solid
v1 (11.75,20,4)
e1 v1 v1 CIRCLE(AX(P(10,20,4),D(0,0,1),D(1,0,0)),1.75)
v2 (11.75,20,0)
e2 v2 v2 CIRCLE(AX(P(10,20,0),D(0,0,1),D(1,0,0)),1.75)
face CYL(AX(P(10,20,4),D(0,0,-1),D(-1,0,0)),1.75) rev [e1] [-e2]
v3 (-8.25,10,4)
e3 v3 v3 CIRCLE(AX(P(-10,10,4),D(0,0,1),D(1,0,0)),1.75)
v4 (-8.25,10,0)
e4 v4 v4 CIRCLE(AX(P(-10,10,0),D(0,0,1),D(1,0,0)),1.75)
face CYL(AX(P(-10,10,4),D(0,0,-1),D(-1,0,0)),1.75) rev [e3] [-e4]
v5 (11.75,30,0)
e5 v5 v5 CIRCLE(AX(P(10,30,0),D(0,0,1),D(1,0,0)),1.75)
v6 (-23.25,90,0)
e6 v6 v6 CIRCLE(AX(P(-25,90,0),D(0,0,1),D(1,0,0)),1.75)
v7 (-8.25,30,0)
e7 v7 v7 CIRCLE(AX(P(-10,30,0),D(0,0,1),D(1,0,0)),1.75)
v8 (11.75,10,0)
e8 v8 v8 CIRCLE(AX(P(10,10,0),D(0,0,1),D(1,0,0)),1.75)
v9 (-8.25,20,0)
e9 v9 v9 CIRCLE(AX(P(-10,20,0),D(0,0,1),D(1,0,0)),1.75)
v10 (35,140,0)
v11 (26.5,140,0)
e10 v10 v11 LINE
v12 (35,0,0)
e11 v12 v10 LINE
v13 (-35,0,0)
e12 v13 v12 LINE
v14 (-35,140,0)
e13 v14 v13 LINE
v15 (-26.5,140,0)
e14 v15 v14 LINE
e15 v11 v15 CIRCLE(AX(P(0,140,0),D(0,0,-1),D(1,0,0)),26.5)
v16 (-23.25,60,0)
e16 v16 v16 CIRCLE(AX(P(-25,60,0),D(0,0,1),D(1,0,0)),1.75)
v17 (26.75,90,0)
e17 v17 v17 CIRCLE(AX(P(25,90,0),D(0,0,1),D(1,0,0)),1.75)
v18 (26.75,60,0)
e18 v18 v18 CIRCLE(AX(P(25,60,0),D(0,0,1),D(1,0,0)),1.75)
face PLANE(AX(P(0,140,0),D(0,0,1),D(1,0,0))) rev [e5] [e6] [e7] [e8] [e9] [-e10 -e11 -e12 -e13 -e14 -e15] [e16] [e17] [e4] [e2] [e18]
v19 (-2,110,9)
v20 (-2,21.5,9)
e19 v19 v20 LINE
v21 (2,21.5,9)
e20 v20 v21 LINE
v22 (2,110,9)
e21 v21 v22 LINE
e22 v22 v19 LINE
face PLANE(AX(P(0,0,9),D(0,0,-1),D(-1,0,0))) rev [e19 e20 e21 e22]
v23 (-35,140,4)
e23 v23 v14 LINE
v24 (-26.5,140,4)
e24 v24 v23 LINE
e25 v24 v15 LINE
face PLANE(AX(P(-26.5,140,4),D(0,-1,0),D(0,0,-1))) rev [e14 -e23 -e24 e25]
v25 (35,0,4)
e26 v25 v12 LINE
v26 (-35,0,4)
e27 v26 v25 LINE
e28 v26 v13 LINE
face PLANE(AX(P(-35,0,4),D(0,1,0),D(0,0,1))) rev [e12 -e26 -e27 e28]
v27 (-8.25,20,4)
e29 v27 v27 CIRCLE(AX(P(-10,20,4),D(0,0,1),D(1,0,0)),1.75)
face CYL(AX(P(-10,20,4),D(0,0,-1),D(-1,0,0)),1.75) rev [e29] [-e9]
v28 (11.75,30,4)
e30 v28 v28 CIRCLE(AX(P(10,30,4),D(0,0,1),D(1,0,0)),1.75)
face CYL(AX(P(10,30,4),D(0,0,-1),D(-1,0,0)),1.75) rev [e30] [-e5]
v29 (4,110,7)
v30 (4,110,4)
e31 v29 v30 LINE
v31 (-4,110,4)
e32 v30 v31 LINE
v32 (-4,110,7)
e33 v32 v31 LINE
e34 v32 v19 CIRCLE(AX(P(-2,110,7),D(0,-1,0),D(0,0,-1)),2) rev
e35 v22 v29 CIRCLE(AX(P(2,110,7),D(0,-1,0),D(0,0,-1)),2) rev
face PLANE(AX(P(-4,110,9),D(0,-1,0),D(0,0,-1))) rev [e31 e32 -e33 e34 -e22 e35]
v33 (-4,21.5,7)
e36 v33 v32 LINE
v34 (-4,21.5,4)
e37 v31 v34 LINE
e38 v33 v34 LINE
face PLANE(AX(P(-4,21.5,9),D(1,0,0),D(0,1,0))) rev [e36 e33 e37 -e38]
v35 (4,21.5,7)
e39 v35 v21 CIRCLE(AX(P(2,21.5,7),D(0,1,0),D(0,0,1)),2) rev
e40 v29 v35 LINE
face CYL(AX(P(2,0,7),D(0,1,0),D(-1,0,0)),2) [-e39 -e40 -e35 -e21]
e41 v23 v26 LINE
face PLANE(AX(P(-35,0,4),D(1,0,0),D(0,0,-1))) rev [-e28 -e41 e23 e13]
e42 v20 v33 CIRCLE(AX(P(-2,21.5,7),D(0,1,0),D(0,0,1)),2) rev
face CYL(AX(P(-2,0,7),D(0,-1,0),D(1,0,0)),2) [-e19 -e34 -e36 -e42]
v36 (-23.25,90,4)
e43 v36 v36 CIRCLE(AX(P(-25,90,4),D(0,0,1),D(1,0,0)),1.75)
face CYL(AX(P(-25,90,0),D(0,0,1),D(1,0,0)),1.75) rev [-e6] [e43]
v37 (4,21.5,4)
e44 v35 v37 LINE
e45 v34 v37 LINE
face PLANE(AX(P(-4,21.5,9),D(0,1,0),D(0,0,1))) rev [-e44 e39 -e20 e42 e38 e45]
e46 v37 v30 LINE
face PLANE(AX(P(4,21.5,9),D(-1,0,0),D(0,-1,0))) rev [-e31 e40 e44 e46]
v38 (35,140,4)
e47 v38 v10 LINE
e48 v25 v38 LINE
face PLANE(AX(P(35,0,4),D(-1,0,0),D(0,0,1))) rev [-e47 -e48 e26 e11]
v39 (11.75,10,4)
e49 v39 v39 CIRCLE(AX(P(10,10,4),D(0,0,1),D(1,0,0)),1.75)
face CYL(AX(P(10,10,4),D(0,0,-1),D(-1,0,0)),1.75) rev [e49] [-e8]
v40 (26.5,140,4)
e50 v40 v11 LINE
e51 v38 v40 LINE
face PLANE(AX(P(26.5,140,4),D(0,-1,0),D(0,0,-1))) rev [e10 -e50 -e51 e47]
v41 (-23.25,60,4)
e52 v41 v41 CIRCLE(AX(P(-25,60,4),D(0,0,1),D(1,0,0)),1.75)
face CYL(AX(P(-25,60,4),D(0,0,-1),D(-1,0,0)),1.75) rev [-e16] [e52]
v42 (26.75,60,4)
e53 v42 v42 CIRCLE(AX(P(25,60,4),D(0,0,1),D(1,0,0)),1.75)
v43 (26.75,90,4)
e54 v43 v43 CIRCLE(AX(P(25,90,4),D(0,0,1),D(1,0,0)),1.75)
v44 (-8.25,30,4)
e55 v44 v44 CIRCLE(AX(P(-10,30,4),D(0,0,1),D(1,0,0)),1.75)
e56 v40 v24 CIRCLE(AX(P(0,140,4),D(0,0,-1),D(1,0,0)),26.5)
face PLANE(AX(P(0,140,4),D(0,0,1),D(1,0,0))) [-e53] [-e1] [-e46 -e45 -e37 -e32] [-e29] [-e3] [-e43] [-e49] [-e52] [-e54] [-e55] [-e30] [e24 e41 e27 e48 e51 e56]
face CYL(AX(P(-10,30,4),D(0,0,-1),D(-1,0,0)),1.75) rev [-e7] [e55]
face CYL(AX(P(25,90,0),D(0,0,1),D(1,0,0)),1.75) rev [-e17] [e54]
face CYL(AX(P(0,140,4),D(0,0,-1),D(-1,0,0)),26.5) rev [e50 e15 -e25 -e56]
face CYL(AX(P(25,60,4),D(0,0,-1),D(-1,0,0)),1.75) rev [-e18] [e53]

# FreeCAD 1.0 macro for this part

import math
import FreeCAD as App
import Part
import Sketcher
from FreeCAD import Vector
Q = App.Units.Quantity


def edges_at(feature, points):
    """Names of the edges that pass closest to the given points."""
    edges = feature.Shape.Edges
    near = lambda p: min(range(len(edges)), key=lambda i: edges[i].distToShape(Part.Vertex(*p))[0])
    return sorted({f"Edge{near(p) + 1}" for p in points})

doc = App.newDocument("Part")
params = doc.addObject("Spreadsheet::Sheet", "Params")
for row, (alias, value) in enumerate([
    ("sketch1_diameter", "3.5 mm"),
    ("sketch1_radius", "26.5 mm"),
    ("sketch1_width", "70 mm"),
    ("sketch1_height", "140 mm"),
    ("pad1_length", "4 mm"),
    ("sketch2_width", "8 mm"),
    ("sketch2_height", "88.5 mm"),
    ("pad2_length", "5 mm"),
    ("fillet_radius", "2 mm"),
    ("sketch3_diameter", "3.5 mm"),
], start=1):
    params.set(f"A{row}", alias)
    params.set(f"B{row}", "=" + value)
    params.setAlias(f"B{row}", alias)

body = doc.addObject("PartDesign::Body", "Body")

# Sketch on XY plane
sketch1 = body.newObject("Sketcher::SketchObject", "Sketch")
sketch1.AttachmentSupport = (doc.getObject("XY_Plane"), [""])
sketch1.MapMode = "FlatFace"
sketch1.addGeometry(Part.LineSegment(Vector(-26.5, 140, 0), Vector(-35, 140, 0)), False)
sketch1.addGeometry(Part.LineSegment(Vector(-35, 140, 0), Vector(-35, 0, 0)), False)
sketch1.addGeometry(Part.LineSegment(Vector(-35, 0, 0), Vector(35, 0, 0)), False)
sketch1.addGeometry(Part.LineSegment(Vector(35, 0, 0), Vector(35, 140, 0)), False)
sketch1.addGeometry(Part.LineSegment(Vector(35, 140, 0), Vector(26.5, 140, 0)), False)
sketch1.addGeometry(Part.ArcOfCircle(Part.Circle(Vector(0, 140, 0), Vector(0, 0, 1), 26.5), math.radians(180), math.radians(360)), False)
sketch1.addGeometry(Part.Circle(Vector(-10, 10, 0), Vector(0, 0, 1), 1.75), False)
sketch1.addGeometry(Part.Circle(Vector(-10, 20, 0), Vector(0, 0, 1), 1.75), False)
sketch1.addGeometry(Part.Circle(Vector(-10, 30, 0), Vector(0, 0, 1), 1.75), False)
sketch1.addGeometry(Part.Circle(Vector(10, 10, 0), Vector(0, 0, 1), 1.75), False)
sketch1.addGeometry(Part.Circle(Vector(10, 20, 0), Vector(0, 0, 1), 1.75), False)
sketch1.addGeometry(Part.Circle(Vector(10, 30, 0), Vector(0, 0, 1), 1.75), False)
sketch1.addGeometry(Part.Circle(Vector(-25, 60, 0), Vector(0, 0, 1), 1.75), False)
sketch1.addGeometry(Part.Circle(Vector(25, 60, 0), Vector(0, 0, 1), 1.75), False)
sketch1.addConstraint(Sketcher.Constraint("Coincident", 0, 2, 1, 1))
sketch1.addConstraint(Sketcher.Constraint("Coincident", 1, 2, 2, 1))
sketch1.addConstraint(Sketcher.Constraint("Coincident", 2, 2, 3, 1))
sketch1.addConstraint(Sketcher.Constraint("Coincident", 3, 2, 4, 1))
sketch1.addConstraint(Sketcher.Constraint("Coincident", 4, 2, 5, 2))
sketch1.addConstraint(Sketcher.Constraint("Coincident", 5, 1, 0, 1))
sketch1.addConstraint(Sketcher.Constraint("Horizontal", 0))
sketch1.addConstraint(Sketcher.Constraint("Vertical", 1))
sketch1.addConstraint(Sketcher.Constraint("Horizontal", 2))
sketch1.addConstraint(Sketcher.Constraint("Vertical", 3))
sketch1.addConstraint(Sketcher.Constraint("Horizontal", 4))
sketch1.addConstraint(Sketcher.Constraint("Equal", 6, 7))
sketch1.addConstraint(Sketcher.Constraint("Equal", 7, 8))
sketch1.addConstraint(Sketcher.Constraint("Equal", 8, 9))
sketch1.addConstraint(Sketcher.Constraint("Equal", 9, 10))
sketch1.addConstraint(Sketcher.Constraint("Equal", 10, 11))
sketch1.addConstraint(Sketcher.Constraint("Equal", 11, 12))
sketch1.addConstraint(Sketcher.Constraint("Equal", 12, 13))
sketch1.addConstraint(Sketcher.Constraint("Symmetric", 1, 2, 2, 2, -1, 1))
sketch1.addConstraint(Sketcher.Constraint("Symmetric", 6, 3, 9, 3, -2))
sketch1.addConstraint(Sketcher.Constraint("Symmetric", 7, 3, 10, 3, -2))
sketch1.addConstraint(Sketcher.Constraint("Symmetric", 8, 3, 11, 3, -2))
sketch1.addConstraint(Sketcher.Constraint("Symmetric", 12, 3, 13, 3, -2))
sketch1.addConstraint(Sketcher.Constraint("Symmetric", 4, 2, 5, 1, -2))
sketch1.addConstraint(Sketcher.Constraint("Horizontal", 5, 3, 0, 2))
sketch1.addConstraint(Sketcher.Constraint("Vertical", 6, 3, 7, 3))
sketch1.addConstraint(Sketcher.Constraint("Vertical", 7, 3, 8, 3))
sketch1.addConstraint(Sketcher.Constraint("Diameter", 6, Q("3.5 mm")))
sketch1.addConstraint(Sketcher.Constraint("Radius", 5, Q("26.5 mm")))
sketch1.addConstraint(Sketcher.Constraint("DistanceX", 2, 1, 2, 2, Q("70 mm")))
sketch1.addConstraint(Sketcher.Constraint("DistanceY", 1, 2, 1, 1, Q("140 mm")))
sketch1.addConstraint(Sketcher.Constraint("DistanceX", 6, 3, -1, 1, Q("10 mm")))
sketch1.addConstraint(Sketcher.Constraint("DistanceY", -1, 1, 6, 3, Q("10 mm")))
sketch1.addConstraint(Sketcher.Constraint("DistanceY", -1, 1, 7, 3, Q("20 mm")))
sketch1.addConstraint(Sketcher.Constraint("DistanceY", -1, 1, 8, 3, Q("30 mm")))
sketch1.addConstraint(Sketcher.Constraint("DistanceX", 12, 3, -1, 1, Q("25 mm")))
sketch1.addConstraint(Sketcher.Constraint("DistanceY", -1, 1, 12, 3, Q("60 mm")))
sketch1.setExpression("Constraints[27]", "Params.sketch1_diameter")
sketch1.setExpression("Constraints[28]", "Params.sketch1_radius")
sketch1.setExpression("Constraints[29]", "Params.sketch1_width")
sketch1.setExpression("Constraints[30]", "Params.sketch1_height")
pad1 = body.newObject("PartDesign::Pad", "Pad")
pad1.Profile = sketch1
pad1.setExpression("Length", "Params.pad1_length")

# Sketch on XY plane
sketch2 = body.newObject("Sketcher::SketchObject", "Sketch001")
sketch2.AttachmentSupport = (doc.getObject("XY_Plane"), [""])
sketch2.MapMode = "FlatFace"
sketch2.AttachmentOffset = App.Placement(Vector(0, 0, 4), App.Rotation())
sketch2.addGeometry(Part.LineSegment(Vector(-4, 110, 0), Vector(-4, 21.5, 0)), False)
sketch2.addGeometry(Part.LineSegment(Vector(-4, 21.5, 0), Vector(4, 21.5, 0)), False)
sketch2.addGeometry(Part.LineSegment(Vector(4, 21.5, 0), Vector(4, 110, 0)), False)
sketch2.addGeometry(Part.LineSegment(Vector(4, 110, 0), Vector(-4, 110, 0)), False)
sketch2.addConstraint(Sketcher.Constraint("Coincident", 0, 2, 1, 1))
sketch2.addConstraint(Sketcher.Constraint("Coincident", 1, 2, 2, 1))
sketch2.addConstraint(Sketcher.Constraint("Coincident", 2, 2, 3, 1))
sketch2.addConstraint(Sketcher.Constraint("Coincident", 3, 2, 0, 1))
sketch2.addConstraint(Sketcher.Constraint("Vertical", 0))
sketch2.addConstraint(Sketcher.Constraint("Horizontal", 1))
sketch2.addConstraint(Sketcher.Constraint("Vertical", 2))
sketch2.addConstraint(Sketcher.Constraint("Horizontal", 3))
sketch2.addConstraint(Sketcher.Constraint("DistanceX", 1, 1, 1, 2, Q("8 mm")))
sketch2.addConstraint(Sketcher.Constraint("DistanceY", 0, 2, 0, 1, Q("88.5 mm")))
sketch2.addConstraint(Sketcher.Constraint("DistanceX", 0, 2, -1, 1, Q("4 mm")))
sketch2.addConstraint(Sketcher.Constraint("DistanceY", -1, 1, 2, 2, Q("110 mm")))
sketch2.setExpression("Constraints[8]", "Params.sketch2_width")
sketch2.setExpression("Constraints[9]", "Params.sketch2_height")
pad2 = body.newObject("PartDesign::Pad", "Pad001")
pad2.Profile = sketch2
pad2.setExpression("Length", "Params.pad2_length")
doc.recompute()

fillet = body.newObject("PartDesign::Fillet", "Fillet")
fillet.Base = (pad2, edges_at(pad2, [(-4, 65.75, 9), (4, 65.75, 9)]))
fillet.setExpression("Radius", "Params.fillet_radius")

# Sketch on XY plane
sketch3 = body.newObject("Sketcher::SketchObject", "Sketch002")
sketch3.AttachmentSupport = (doc.getObject("XY_Plane"), [""])
sketch3.MapMode = "FlatFace"
sketch3.AttachmentOffset = App.Placement(Vector(0, 0, 4), App.Rotation())
sketch3.addGeometry(Part.Circle(Vector(-25, 90, 0), Vector(0, 0, 1), 1.75), False)
sketch3.addGeometry(Part.Circle(Vector(25, 90, 0), Vector(0, 0, 1), 1.75), False)
sketch3.addConstraint(Sketcher.Constraint("Equal", 0, 1))
sketch3.addConstraint(Sketcher.Constraint("Symmetric", 0, 3, 1, 3, -2))
sketch3.addConstraint(Sketcher.Constraint("Diameter", 0, Q("3.5 mm")))
sketch3.addConstraint(Sketcher.Constraint("DistanceX", 0, 3, -1, 1, Q("25 mm")))
sketch3.addConstraint(Sketcher.Constraint("DistanceY", -1, 1, 0, 3, Q("90 mm")))
sketch3.setExpression("Constraints[2]", "Params.sketch3_diameter")
pocket1 = body.newObject("PartDesign::Pocket", "Pocket")
pocket1.Profile = sketch3
pocket1.Type = "ThroughAll"

doc.recompute()
